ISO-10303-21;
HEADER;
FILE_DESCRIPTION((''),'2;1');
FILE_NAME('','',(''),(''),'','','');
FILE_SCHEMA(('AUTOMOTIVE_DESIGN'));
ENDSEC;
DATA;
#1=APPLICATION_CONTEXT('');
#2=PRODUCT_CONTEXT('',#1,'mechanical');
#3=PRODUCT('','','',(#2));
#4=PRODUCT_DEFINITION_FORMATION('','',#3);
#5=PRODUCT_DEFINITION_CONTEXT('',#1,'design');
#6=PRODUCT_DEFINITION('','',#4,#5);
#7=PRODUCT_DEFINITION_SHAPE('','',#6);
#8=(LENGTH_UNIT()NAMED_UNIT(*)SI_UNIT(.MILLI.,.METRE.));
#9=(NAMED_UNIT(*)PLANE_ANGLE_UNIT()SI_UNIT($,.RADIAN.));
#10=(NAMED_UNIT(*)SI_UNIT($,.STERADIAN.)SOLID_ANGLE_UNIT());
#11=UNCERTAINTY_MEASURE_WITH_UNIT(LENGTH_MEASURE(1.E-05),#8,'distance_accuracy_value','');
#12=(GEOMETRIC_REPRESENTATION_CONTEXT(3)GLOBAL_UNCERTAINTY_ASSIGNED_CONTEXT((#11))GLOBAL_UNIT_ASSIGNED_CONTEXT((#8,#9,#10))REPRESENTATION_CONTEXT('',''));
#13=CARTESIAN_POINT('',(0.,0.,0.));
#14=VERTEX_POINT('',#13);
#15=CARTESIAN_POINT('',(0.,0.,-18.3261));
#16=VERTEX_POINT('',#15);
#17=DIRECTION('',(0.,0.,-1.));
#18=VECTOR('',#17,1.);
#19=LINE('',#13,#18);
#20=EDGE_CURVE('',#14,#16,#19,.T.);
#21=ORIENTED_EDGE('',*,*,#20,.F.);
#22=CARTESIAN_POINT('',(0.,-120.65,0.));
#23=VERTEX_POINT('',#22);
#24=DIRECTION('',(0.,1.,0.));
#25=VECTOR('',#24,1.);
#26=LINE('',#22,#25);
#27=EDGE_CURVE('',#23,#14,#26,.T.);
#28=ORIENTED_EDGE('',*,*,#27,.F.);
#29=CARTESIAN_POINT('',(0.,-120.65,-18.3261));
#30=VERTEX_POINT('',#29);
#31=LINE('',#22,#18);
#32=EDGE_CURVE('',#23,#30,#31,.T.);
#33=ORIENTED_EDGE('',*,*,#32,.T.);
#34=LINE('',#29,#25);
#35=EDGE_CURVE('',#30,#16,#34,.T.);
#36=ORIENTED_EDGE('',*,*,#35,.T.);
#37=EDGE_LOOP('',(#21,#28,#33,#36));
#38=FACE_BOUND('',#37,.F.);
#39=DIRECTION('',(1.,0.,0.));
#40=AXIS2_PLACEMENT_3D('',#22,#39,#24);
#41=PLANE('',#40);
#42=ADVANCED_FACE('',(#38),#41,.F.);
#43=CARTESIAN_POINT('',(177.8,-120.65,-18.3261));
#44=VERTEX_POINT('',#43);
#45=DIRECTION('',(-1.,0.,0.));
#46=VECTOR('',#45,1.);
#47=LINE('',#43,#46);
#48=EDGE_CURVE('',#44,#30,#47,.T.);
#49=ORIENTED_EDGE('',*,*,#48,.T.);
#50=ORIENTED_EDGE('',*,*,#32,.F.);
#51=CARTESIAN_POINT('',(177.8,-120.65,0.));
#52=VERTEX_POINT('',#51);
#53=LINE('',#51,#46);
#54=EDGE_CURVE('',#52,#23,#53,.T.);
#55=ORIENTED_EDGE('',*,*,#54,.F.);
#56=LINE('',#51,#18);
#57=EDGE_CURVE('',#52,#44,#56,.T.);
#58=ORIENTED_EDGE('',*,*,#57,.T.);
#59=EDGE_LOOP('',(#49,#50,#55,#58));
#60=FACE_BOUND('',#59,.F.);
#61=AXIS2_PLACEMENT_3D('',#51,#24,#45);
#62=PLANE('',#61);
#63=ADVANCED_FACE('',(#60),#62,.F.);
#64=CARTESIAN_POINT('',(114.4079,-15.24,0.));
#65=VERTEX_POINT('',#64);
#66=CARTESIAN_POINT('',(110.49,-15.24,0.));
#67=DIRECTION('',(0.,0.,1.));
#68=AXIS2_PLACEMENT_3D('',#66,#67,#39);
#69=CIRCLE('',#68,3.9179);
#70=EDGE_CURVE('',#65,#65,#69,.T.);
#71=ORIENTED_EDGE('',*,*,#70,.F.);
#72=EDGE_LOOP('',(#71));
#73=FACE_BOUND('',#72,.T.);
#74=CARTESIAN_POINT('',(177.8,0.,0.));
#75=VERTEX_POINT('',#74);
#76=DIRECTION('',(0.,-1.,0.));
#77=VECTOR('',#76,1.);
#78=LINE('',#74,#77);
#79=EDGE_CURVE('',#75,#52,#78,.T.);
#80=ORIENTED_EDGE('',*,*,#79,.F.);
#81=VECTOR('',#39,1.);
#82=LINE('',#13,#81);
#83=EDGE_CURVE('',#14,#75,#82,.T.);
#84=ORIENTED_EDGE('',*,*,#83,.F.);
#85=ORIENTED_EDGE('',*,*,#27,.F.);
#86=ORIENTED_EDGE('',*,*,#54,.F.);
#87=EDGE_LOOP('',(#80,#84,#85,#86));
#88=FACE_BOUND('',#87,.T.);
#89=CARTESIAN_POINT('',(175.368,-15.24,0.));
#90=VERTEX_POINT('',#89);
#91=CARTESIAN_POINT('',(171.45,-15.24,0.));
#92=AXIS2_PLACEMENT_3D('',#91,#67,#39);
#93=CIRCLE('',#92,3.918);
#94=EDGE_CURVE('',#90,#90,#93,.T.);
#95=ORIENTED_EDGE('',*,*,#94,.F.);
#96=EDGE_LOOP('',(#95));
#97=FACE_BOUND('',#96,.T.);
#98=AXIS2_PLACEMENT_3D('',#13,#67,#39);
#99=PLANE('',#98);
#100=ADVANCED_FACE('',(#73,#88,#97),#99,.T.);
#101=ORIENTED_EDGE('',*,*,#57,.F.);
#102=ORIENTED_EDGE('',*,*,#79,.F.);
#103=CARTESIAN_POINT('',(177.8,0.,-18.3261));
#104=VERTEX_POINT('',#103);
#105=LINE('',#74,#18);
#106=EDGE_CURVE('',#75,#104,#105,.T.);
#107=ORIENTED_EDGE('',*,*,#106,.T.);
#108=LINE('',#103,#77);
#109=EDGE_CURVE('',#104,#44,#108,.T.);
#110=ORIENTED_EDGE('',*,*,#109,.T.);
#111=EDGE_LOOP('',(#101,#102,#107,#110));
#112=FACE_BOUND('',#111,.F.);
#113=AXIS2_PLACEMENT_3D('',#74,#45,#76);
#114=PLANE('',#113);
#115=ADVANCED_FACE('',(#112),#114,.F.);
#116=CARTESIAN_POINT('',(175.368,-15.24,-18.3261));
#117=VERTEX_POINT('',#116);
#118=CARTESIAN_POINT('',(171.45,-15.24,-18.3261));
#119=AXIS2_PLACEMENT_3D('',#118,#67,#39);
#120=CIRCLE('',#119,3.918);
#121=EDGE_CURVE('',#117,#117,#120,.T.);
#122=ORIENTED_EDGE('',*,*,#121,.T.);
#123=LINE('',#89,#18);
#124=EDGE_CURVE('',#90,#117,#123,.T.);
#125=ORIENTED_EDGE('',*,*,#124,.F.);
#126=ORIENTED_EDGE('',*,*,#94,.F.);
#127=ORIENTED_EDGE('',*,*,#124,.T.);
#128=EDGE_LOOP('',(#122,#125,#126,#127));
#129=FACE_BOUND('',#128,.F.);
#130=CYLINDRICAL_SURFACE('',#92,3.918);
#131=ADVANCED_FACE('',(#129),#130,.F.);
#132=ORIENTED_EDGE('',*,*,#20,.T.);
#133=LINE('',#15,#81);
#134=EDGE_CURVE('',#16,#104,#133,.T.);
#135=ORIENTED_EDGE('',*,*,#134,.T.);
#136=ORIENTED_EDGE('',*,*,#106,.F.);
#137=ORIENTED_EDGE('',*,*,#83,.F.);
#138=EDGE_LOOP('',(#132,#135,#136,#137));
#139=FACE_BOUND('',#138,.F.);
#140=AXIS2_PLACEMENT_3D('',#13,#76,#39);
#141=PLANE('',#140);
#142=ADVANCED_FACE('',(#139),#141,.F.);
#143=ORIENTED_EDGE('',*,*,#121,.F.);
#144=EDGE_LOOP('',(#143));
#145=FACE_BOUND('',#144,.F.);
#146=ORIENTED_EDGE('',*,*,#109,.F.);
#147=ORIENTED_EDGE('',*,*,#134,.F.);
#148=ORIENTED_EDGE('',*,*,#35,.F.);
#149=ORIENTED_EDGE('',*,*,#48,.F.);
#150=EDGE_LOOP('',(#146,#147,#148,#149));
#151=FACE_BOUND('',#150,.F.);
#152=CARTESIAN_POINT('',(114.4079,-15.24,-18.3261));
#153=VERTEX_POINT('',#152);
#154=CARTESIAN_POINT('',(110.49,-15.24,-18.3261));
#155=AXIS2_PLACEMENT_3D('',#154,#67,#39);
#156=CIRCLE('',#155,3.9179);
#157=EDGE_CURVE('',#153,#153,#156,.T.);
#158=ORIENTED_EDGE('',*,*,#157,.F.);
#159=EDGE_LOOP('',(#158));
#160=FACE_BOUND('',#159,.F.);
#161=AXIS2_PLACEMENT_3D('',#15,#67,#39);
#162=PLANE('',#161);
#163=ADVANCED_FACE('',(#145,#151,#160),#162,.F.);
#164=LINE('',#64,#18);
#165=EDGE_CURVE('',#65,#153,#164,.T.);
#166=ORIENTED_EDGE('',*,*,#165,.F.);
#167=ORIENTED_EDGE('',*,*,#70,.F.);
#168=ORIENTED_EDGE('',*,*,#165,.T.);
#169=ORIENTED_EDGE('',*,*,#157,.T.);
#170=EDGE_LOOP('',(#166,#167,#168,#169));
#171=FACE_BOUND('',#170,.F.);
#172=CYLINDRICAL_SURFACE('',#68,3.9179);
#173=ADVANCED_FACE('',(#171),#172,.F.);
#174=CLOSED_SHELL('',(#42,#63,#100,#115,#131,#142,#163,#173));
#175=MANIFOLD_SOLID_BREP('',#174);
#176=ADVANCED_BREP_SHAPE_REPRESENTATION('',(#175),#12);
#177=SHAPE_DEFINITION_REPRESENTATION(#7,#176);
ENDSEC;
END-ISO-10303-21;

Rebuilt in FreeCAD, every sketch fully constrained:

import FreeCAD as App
import Part
import Sketcher
Q = App.Units.Quantity


def add_polygon(sketch, points):
    """Adds a closed chain of lines whose ends are joined by coincident constraints."""
    first, n = sketch.GeometryCount, len(points)
    for a, b in zip(points, points[1:] + points[:1]):
        sketch.addGeometry(Part.LineSegment(App.Vector(*a, 0), App.Vector(*b, 0)), False)
    for i in range(n):
        sketch.addConstraint(Sketcher.Constraint("Coincident", first + i, 2, first + (i + 1) % n, 1))

doc = App.newDocument("Part")
body = doc.addObject("PartDesign::Body", "Body")

# Sketch on XY plane
sketch1 = body.newObject("Sketcher::SketchObject", "Sketch")
sketch1.AttachmentSupport = (doc.getObject("XY_Plane"), [""])
sketch1.MapMode = "FlatFace"
add_polygon(sketch1, [(177.8, 0), (0, 0), (0, -120.7), (177.8, -120.7)])  # lines 0-3
sketch1.addGeometry(Part.Circle(App.Vector(110.5, -15.2, 0), App.Vector(0, 0, 1), 3.9), False)  # 4
sketch1.addGeometry(Part.Circle(App.Vector(171.4, -15.2, 0), App.Vector(0, 0, 1), 3.9), False)  # 5
sketch1.addConstraint([
    Sketcher.Constraint("Horizontal", 0),
    Sketcher.Constraint("Vertical", 1),
    Sketcher.Constraint("Horizontal", 2),
    Sketcher.Constraint("Vertical", 3),
    Sketcher.Constraint("Coincident", 0, 2, -1, 1),
    Sketcher.Constraint("Equal", 4, 5),
    Sketcher.Constraint("Horizontal", 4, 3, 5, 3),
    Sketcher.Constraint("DistanceX", 0, 2, 0, 1, Q("7 in")),
    Sketcher.Constraint("Diameter", 4, Q("0.3085 in")),
    Sketcher.Constraint("DistanceY", 1, 2, 1, 1, Q("4.75 in")),
    Sketcher.Constraint("DistanceX", 4, 3, 5, 3, Q("2.4 in")),
    Sketcher.Constraint("DistanceX", -1, 1, 4, 3, Q("4.35 in")),
    Sketcher.Constraint("DistanceY", 1, 2, 4, 3, Q("4.15 in")),
])
pad1 = body.newObject("PartDesign::Pad", "Pad")
pad1.Profile = sketch1
pad1.Length = Q("0.7215 in")
pad1.Reversed = True

doc.recompute()
